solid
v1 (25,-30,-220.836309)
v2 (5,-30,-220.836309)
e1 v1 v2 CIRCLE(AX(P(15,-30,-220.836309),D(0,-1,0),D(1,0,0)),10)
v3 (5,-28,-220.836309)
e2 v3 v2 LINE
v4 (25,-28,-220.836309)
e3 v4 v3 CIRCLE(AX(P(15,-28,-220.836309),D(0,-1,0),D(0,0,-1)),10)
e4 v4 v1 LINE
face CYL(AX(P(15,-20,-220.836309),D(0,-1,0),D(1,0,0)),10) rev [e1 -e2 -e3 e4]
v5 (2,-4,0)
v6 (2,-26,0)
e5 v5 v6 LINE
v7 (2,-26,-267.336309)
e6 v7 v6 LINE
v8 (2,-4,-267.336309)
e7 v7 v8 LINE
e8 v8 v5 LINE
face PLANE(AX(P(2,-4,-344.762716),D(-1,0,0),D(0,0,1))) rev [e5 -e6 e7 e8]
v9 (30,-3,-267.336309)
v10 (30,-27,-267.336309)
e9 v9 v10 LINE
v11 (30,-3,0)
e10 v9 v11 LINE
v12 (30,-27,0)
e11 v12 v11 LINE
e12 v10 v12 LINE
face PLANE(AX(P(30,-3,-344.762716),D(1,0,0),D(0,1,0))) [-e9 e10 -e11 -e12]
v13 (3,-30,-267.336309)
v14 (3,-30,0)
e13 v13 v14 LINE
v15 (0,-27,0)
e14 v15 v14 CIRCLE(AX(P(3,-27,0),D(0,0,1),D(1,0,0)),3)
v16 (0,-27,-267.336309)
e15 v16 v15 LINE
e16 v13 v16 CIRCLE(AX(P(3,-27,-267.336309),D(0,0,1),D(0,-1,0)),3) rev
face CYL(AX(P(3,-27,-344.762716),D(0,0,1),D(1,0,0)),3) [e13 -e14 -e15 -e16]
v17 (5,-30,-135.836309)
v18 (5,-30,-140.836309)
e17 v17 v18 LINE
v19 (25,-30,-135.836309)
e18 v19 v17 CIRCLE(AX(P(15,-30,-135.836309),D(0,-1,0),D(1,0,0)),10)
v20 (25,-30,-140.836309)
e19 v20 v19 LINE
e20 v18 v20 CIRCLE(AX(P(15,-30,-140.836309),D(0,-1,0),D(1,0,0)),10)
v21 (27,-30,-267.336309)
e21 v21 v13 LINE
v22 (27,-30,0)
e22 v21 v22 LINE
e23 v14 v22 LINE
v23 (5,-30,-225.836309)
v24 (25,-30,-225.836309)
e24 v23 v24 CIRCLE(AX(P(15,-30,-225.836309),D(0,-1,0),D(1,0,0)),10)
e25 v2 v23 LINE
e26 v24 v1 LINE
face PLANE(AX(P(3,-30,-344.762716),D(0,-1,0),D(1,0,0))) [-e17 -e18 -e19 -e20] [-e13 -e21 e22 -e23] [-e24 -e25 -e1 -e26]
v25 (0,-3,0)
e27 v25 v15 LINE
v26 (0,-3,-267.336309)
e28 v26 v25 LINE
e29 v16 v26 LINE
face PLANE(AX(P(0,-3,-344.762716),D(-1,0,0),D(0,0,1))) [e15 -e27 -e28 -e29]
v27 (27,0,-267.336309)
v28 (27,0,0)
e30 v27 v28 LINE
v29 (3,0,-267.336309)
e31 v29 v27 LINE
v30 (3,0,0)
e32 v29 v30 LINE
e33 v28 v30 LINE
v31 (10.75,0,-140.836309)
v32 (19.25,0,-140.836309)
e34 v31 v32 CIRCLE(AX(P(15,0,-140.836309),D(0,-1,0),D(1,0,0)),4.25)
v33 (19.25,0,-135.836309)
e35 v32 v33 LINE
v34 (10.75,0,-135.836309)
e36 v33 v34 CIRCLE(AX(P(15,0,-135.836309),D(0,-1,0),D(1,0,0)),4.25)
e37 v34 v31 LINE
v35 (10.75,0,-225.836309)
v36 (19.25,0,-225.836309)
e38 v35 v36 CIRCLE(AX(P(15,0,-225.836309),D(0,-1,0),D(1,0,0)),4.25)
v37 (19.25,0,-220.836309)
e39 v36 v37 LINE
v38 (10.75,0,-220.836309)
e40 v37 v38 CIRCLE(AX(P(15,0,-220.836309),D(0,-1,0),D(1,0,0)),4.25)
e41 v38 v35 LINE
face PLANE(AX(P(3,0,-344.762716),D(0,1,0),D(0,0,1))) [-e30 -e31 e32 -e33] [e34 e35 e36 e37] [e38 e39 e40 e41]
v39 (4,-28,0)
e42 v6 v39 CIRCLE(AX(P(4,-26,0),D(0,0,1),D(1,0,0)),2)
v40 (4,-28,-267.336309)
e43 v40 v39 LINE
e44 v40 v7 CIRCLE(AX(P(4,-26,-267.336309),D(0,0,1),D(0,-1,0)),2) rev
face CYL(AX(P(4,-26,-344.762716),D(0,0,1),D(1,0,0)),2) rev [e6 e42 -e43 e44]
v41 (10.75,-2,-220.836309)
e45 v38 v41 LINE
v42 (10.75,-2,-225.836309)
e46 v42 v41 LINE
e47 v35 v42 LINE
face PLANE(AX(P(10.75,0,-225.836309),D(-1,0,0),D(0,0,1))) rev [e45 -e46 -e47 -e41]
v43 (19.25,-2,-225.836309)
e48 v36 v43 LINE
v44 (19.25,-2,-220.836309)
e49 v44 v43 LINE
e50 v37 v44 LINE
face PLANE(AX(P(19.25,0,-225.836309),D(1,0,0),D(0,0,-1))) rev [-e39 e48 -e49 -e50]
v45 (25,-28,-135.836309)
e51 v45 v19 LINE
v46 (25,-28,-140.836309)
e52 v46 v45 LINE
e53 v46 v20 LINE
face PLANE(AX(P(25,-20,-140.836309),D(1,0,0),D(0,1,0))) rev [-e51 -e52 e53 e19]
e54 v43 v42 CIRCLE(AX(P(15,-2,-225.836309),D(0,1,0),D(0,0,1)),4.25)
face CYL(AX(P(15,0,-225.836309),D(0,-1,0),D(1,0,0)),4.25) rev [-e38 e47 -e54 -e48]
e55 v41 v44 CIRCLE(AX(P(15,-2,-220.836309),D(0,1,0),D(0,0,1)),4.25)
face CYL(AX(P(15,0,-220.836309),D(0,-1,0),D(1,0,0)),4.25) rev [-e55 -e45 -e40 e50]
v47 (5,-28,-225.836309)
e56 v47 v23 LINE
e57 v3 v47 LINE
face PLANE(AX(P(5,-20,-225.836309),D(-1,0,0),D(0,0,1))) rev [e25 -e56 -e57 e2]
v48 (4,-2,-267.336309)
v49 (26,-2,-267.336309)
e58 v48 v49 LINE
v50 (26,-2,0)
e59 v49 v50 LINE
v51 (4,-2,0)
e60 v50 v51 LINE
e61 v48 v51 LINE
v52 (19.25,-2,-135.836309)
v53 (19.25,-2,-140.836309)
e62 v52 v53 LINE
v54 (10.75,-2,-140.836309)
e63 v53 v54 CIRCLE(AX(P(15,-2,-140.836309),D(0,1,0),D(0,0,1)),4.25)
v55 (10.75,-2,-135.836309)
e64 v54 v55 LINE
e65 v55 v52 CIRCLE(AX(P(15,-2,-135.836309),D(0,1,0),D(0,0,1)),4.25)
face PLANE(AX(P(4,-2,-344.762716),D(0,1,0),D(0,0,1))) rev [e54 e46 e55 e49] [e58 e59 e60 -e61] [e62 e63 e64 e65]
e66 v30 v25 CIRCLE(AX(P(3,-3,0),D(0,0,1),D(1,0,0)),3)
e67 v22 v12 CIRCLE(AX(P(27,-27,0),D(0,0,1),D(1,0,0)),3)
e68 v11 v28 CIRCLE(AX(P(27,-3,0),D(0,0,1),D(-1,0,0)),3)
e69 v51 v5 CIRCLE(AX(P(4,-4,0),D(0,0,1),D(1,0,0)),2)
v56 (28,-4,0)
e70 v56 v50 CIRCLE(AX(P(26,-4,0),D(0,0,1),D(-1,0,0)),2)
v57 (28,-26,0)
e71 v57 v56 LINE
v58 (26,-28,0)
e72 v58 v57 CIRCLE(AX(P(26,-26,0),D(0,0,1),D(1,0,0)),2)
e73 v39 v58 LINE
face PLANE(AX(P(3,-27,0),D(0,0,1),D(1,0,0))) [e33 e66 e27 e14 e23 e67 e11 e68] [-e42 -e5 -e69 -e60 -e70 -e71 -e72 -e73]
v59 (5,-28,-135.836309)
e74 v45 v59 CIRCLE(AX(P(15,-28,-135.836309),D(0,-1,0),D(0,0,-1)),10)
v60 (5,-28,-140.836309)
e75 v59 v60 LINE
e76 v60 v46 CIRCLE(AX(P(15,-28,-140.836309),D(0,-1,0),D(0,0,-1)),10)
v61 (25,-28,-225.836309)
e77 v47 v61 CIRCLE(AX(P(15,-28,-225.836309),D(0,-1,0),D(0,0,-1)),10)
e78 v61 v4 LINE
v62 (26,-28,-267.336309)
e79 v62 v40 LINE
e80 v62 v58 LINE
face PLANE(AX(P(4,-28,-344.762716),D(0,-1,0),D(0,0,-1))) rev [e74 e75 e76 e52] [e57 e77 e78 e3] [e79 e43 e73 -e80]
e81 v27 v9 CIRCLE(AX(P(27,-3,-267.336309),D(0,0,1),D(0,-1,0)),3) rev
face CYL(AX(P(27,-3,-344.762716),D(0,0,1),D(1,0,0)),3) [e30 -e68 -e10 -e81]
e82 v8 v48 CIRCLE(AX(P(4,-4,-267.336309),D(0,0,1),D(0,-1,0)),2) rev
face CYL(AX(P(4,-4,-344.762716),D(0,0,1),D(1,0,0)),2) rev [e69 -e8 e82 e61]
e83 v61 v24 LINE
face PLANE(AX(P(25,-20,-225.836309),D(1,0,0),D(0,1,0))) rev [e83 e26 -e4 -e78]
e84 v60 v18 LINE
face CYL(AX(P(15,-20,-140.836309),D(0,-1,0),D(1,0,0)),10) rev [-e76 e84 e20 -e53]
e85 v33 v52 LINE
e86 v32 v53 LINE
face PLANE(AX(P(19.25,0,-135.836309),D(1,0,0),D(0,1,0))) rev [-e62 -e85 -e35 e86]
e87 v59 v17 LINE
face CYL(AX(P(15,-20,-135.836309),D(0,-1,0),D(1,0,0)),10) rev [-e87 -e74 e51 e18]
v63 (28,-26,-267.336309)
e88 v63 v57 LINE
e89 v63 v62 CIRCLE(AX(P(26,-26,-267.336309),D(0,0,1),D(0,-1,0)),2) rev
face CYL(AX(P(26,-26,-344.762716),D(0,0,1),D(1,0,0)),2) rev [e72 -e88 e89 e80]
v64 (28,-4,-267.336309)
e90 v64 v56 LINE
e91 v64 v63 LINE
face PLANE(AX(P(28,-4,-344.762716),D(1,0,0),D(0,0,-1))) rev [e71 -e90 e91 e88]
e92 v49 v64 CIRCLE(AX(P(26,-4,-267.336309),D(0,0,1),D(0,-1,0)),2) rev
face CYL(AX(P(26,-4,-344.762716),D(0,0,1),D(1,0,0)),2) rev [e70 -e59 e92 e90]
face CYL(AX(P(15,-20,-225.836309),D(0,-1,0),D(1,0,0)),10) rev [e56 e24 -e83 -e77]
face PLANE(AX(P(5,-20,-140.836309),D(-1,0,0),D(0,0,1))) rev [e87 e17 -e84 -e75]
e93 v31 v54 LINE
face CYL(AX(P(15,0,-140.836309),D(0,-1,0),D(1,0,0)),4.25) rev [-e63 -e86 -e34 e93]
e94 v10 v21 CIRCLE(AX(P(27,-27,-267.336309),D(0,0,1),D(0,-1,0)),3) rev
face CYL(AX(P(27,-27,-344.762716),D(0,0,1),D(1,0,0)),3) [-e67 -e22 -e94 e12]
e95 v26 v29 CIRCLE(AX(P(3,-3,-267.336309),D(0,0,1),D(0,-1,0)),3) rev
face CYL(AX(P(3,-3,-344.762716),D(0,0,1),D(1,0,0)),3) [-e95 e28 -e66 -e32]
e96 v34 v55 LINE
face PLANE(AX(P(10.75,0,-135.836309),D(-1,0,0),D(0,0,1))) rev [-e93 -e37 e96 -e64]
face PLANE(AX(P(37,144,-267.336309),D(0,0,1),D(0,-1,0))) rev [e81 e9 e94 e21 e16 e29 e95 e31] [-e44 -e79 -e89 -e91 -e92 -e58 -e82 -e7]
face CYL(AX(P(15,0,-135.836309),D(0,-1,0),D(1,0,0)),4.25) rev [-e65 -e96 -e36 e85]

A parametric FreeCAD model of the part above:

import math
import FreeCAD as App
import Part
import Sketcher

V = App.Vector
Q = App.Units.Quantity

doc = App.newDocument("Part")
body = doc.addObject("PartDesign::Body", "Body")

# Sketch on XY plane
sketch1 = doc.addObject("Sketcher::SketchObject", "Sketch")
body.addObject(sketch1)
sketch1.AttachmentSupport = (doc.XY_Plane, [""])
sketch1.MapMode = "FlatFace"
sketch1.addGeometry([
    Part.LineSegment(V(27, 0, 0), V(3, 0, 0)),  # 0
    Part.ArcOfCircle(Part.Circle(V(3, -3, 0), V(0, 0, 1), 3), math.radians(90), math.radians(180)),  # 1
    Part.LineSegment(V(0, -3, 0), V(0, -27, 0)),  # 2
    Part.ArcOfCircle(Part.Circle(V(3, -27, 0), V(0, 0, 1), 3), math.radians(180), math.radians(270)),  # 3
    Part.LineSegment(V(3, -30, 0), V(27, -30, 0)),  # 4
    Part.ArcOfCircle(Part.Circle(V(27, -27, 0), V(0, 0, 1), 3), math.radians(-90), math.radians(0)),  # 5
    Part.LineSegment(V(30, -27, 0), V(30, -3, 0)),  # 6
    Part.ArcOfCircle(Part.Circle(V(27, -3, 0), V(0, 0, 1), 3), math.radians(0), math.radians(90)),  # 7
    Part.LineSegment(V(4, -2, 0), V(26, -2, 0)),  # 8
    Part.ArcOfCircle(Part.Circle(V(26, -4, 0), V(0, 0, 1), 2), math.radians(0), math.radians(90)),  # 9
    Part.LineSegment(V(28, -4, 0), V(28, -26, 0)),  # 10
    Part.ArcOfCircle(Part.Circle(V(26, -26, 0), V(0, 0, 1), 2), math.radians(-90), math.radians(0)),  # 11
    Part.LineSegment(V(26, -28, 0), V(4, -28, 0)),  # 12
    Part.ArcOfCircle(Part.Circle(V(4, -26, 0), V(0, 0, 1), 2), math.radians(-180), math.radians(-90)),  # 13
    Part.LineSegment(V(2, -26, 0), V(2, -4, 0)),  # 14
    Part.ArcOfCircle(Part.Circle(V(4, -4, 0), V(0, 0, 1), 2), math.radians(90), math.radians(180)),  # 15
], False)
sketch1.addConstraint([
    Sketcher.Constraint("Tangent", 0, 2, 1, 1),
    Sketcher.Constraint("Tangent", 1, 2, 2, 1),
    Sketcher.Constraint("Tangent", 2, 2, 3, 1),
    Sketcher.Constraint("Tangent", 3, 2, 4, 1),
    Sketcher.Constraint("Tangent", 4, 2, 5, 1),
    Sketcher.Constraint("Tangent", 5, 2, 6, 1),
    Sketcher.Constraint("Tangent", 6, 2, 7, 1),
    Sketcher.Constraint("Tangent", 7, 2, 0, 1),
    Sketcher.Constraint("Tangent", 8, 2, 9, 2),
    Sketcher.Constraint("Tangent", 9, 1, 10, 1),
    Sketcher.Constraint("Tangent", 10, 2, 11, 2),
    Sketcher.Constraint("Tangent", 11, 1, 12, 1),
    Sketcher.Constraint("Tangent", 12, 2, 13, 2),
    Sketcher.Constraint("Tangent", 13, 1, 14, 1),
    Sketcher.Constraint("Tangent", 14, 2, 15, 2),
    Sketcher.Constraint("Tangent", 15, 1, 8, 1),
    Sketcher.Constraint("Horizontal", 0),
    Sketcher.Constraint("Vertical", 2),
    Sketcher.Constraint("Horizontal", 4),
    Sketcher.Constraint("Vertical", 6),
    Sketcher.Constraint("Horizontal", 8),
    Sketcher.Constraint("Vertical", 10),
    Sketcher.Constraint("Horizontal", 12),
    Sketcher.Constraint("Vertical", 14),
    Sketcher.Constraint("Equal", 1, 3),
    Sketcher.Constraint("Equal", 3, 5),
    Sketcher.Constraint("Equal", 5, 7),
    Sketcher.Constraint("Equal", 9, 11),
    Sketcher.Constraint("Equal", 11, 13),
    Sketcher.Constraint("Equal", 13, 15),
    Sketcher.Constraint("PointOnObject", 0, 2, -1),
    Sketcher.Constraint("PointOnObject", 1, 2, -2),
    Sketcher.Constraint("Equal", 4, 2),
    Sketcher.Constraint("Equal", 12, 10),
    Sketcher.Constraint("Radius", 1, Q("3 mm")),
    Sketcher.Constraint("Radius", 9, Q("2 mm")),
    Sketcher.Constraint("DistanceX", 0, 2, 0, 1, Q("24 mm")),
    Sketcher.Constraint("DistanceX", 8, 1, 8, 2, Q("22 mm")),
    Sketcher.Constraint("DistanceX", -1, 1, 9, 3, Q("26 mm")),
    Sketcher.Constraint("DistanceY", 9, 3, -1, 1, Q("4 mm")),
])
pad1 = doc.addObject("PartDesign::Pad", "Pad")
body.addObject(pad1)
pad1.Profile = sketch1
pad1.Length = 267.336309
pad1.Reversed = True

# Sketch on XZ plane
sketch2 = doc.addObject("Sketcher::SketchObject", "Sketch001")
body.addObject(sketch2)
sketch2.AttachmentSupport = (doc.XZ_Plane, [""])
sketch2.MapMode = "FlatFace"
sketch2.AttachmentOffset = App.Placement(V(0, 0, 30), App.Rotation())
sketch2.addGeometry([
    Part.LineSegment(V(19.2, -140.8, 0), V(19.2, -135.8, 0)),  # 0
    Part.ArcOfCircle(Part.Circle(V(15, -135.8, 0), V(0, 0, 1), 4.2), math.radians(0), math.radians(180)),  # 1
    Part.LineSegment(V(10.8, -135.8, 0), V(10.8, -140.8, 0)),  # 2
    Part.ArcOfCircle(Part.Circle(V(15, -140.8, 0), V(0, 0, 1), 4.2), math.radians(180), math.radians(360)),  # 3
    Part.LineSegment(V(10.8, -220.8, 0), V(10.8, -225.8, 0)),  # 4
    Part.ArcOfCircle(Part.Circle(V(15, -225.8, 0), V(0, 0, 1), 4.2), math.radians(180), math.radians(360)),  # 5
    Part.LineSegment(V(19.2, -225.8, 0), V(19.2, -220.8, 0)),  # 6
    Part.ArcOfCircle(Part.Circle(V(15, -220.8, 0), V(0, 0, 1), 4.2), math.radians(0), math.radians(180)),  # 7
], False)
sketch2.addConstraint([
    Sketcher.Constraint("Tangent", 0, 2, 1, 1),
    Sketcher.Constraint("Tangent", 1, 2, 2, 1),
    Sketcher.Constraint("Tangent", 2, 2, 3, 1),
    Sketcher.Constraint("Tangent", 3, 2, 0, 1),
    Sketcher.Constraint("Tangent", 4, 2, 5, 1),
    Sketcher.Constraint("Tangent", 5, 2, 6, 1),
    Sketcher.Constraint("Tangent", 6, 2, 7, 1),
    Sketcher.Constraint("Tangent", 7, 2, 4, 1),
    Sketcher.Constraint("Vertical", 0),
    Sketcher.Constraint("Vertical", 2),
    Sketcher.Constraint("Vertical", 4),
    Sketcher.Constraint("Vertical", 6),
    Sketcher.Constraint("Equal", 3, 5),
    Sketcher.Constraint("Vertical", 3, 3, 5, 3),
    Sketcher.Constraint("Equal", 2, 4),
    Sketcher.Constraint("DistanceY", 0, 1, 0, 2, Q("5 mm")),
    Sketcher.Constraint("Radius", 1, Q("4.25 mm")),
    Sketcher.Constraint("DistanceX", -1, 1, 1, 3, Q("15 mm")),
    Sketcher.Constraint("DistanceY", 5, 3, 3, 3, Q("85 mm")),
    Sketcher.Constraint("DistanceY", 1, 3, -1, 1, Q("135.836309 mm")),
])
pocket1 = doc.addObject("PartDesign::Pocket", "Pocket")
body.addObject(pocket1)
pocket1.Profile = sketch2
pocket1.Type = "ThroughAll"

# Sketch on XZ plane
sketch3 = doc.addObject("Sketcher::SketchObject", "Sketch002")
body.addObject(sketch3)
sketch3.AttachmentSupport = (doc.XZ_Plane, [""])
sketch3.MapMode = "FlatFace"
sketch3.AttachmentOffset = App.Placement(V(0, 0, 30), App.Rotation())
sketch3.addGeometry([
    Part.LineSegment(V(5, -136, 0), V(5, -141, 0)),  # 0
    Part.ArcOfCircle(Part.Circle(V(15, -141, 0), V(0, 0, 1), 10), math.radians(180), math.radians(360)),  # 1
    Part.LineSegment(V(25, -141, 0), V(25, -136, 0)),  # 2
    Part.ArcOfCircle(Part.Circle(V(15, -136, 0), V(0, 0, 1), 10), math.radians(0), math.radians(180)),  # 3
    Part.LineSegment(V(5, -221, 0), V(5, -226, 0)),  # 4
    Part.ArcOfCircle(Part.Circle(V(15, -226, 0), V(0, 0, 1), 10), math.radians(180), math.radians(360)),  # 5
    Part.LineSegment(V(25, -226, 0), V(25, -221, 0)),  # 6
    Part.ArcOfCircle(Part.Circle(V(15, -221, 0), V(0, 0, 1), 10), math.radians(0), math.radians(180)),  # 7
], False)
sketch3.addConstraint([
    Sketcher.Constraint("Tangent", 0, 2, 1, 1),
    Sketcher.Constraint("Tangent", 1, 2, 2, 1),
    Sketcher.Constraint("Tangent", 2, 2, 3, 1),
    Sketcher.Constraint("Tangent", 3, 2, 0, 1),
    Sketcher.Constraint("Tangent", 4, 2, 5, 1),
    Sketcher.Constraint("Tangent", 5, 2, 6, 1),
    Sketcher.Constraint("Tangent", 6, 2, 7, 1),
    Sketcher.Constraint("Tangent", 7, 2, 4, 1),
    Sketcher.Constraint("Vertical", 0),
    Sketcher.Constraint("Vertical", 2),
    Sketcher.Constraint("Vertical", 4),
    Sketcher.Constraint("Vertical", 6),
    Sketcher.Constraint("Equal", 3, 5),
    Sketcher.Constraint("Vertical", 3, 3, 5, 3),
    Sketcher.Constraint("Equal", 2, 4),
    Sketcher.Constraint("Radius", 1, Q("10 mm")),
    Sketcher.Constraint("DistanceY", 0, 2, 0, 1, Q("5 mm")),
    Sketcher.Constraint("DistanceX", -1, 1, 1, 3, Q("15 mm")),
    Sketcher.Constraint("DistanceY", 5, 3, 1, 3, Q("85 mm")),
    Sketcher.Constraint("DistanceY", 1, 3, -1, 1, Q("140.836309 mm")),
])
pocket2 = doc.addObject("PartDesign::Pocket", "Pocket001")
body.addObject(pocket2)
pocket2.Profile = sketch3
pocket2.Length = 10

doc.recompute()
